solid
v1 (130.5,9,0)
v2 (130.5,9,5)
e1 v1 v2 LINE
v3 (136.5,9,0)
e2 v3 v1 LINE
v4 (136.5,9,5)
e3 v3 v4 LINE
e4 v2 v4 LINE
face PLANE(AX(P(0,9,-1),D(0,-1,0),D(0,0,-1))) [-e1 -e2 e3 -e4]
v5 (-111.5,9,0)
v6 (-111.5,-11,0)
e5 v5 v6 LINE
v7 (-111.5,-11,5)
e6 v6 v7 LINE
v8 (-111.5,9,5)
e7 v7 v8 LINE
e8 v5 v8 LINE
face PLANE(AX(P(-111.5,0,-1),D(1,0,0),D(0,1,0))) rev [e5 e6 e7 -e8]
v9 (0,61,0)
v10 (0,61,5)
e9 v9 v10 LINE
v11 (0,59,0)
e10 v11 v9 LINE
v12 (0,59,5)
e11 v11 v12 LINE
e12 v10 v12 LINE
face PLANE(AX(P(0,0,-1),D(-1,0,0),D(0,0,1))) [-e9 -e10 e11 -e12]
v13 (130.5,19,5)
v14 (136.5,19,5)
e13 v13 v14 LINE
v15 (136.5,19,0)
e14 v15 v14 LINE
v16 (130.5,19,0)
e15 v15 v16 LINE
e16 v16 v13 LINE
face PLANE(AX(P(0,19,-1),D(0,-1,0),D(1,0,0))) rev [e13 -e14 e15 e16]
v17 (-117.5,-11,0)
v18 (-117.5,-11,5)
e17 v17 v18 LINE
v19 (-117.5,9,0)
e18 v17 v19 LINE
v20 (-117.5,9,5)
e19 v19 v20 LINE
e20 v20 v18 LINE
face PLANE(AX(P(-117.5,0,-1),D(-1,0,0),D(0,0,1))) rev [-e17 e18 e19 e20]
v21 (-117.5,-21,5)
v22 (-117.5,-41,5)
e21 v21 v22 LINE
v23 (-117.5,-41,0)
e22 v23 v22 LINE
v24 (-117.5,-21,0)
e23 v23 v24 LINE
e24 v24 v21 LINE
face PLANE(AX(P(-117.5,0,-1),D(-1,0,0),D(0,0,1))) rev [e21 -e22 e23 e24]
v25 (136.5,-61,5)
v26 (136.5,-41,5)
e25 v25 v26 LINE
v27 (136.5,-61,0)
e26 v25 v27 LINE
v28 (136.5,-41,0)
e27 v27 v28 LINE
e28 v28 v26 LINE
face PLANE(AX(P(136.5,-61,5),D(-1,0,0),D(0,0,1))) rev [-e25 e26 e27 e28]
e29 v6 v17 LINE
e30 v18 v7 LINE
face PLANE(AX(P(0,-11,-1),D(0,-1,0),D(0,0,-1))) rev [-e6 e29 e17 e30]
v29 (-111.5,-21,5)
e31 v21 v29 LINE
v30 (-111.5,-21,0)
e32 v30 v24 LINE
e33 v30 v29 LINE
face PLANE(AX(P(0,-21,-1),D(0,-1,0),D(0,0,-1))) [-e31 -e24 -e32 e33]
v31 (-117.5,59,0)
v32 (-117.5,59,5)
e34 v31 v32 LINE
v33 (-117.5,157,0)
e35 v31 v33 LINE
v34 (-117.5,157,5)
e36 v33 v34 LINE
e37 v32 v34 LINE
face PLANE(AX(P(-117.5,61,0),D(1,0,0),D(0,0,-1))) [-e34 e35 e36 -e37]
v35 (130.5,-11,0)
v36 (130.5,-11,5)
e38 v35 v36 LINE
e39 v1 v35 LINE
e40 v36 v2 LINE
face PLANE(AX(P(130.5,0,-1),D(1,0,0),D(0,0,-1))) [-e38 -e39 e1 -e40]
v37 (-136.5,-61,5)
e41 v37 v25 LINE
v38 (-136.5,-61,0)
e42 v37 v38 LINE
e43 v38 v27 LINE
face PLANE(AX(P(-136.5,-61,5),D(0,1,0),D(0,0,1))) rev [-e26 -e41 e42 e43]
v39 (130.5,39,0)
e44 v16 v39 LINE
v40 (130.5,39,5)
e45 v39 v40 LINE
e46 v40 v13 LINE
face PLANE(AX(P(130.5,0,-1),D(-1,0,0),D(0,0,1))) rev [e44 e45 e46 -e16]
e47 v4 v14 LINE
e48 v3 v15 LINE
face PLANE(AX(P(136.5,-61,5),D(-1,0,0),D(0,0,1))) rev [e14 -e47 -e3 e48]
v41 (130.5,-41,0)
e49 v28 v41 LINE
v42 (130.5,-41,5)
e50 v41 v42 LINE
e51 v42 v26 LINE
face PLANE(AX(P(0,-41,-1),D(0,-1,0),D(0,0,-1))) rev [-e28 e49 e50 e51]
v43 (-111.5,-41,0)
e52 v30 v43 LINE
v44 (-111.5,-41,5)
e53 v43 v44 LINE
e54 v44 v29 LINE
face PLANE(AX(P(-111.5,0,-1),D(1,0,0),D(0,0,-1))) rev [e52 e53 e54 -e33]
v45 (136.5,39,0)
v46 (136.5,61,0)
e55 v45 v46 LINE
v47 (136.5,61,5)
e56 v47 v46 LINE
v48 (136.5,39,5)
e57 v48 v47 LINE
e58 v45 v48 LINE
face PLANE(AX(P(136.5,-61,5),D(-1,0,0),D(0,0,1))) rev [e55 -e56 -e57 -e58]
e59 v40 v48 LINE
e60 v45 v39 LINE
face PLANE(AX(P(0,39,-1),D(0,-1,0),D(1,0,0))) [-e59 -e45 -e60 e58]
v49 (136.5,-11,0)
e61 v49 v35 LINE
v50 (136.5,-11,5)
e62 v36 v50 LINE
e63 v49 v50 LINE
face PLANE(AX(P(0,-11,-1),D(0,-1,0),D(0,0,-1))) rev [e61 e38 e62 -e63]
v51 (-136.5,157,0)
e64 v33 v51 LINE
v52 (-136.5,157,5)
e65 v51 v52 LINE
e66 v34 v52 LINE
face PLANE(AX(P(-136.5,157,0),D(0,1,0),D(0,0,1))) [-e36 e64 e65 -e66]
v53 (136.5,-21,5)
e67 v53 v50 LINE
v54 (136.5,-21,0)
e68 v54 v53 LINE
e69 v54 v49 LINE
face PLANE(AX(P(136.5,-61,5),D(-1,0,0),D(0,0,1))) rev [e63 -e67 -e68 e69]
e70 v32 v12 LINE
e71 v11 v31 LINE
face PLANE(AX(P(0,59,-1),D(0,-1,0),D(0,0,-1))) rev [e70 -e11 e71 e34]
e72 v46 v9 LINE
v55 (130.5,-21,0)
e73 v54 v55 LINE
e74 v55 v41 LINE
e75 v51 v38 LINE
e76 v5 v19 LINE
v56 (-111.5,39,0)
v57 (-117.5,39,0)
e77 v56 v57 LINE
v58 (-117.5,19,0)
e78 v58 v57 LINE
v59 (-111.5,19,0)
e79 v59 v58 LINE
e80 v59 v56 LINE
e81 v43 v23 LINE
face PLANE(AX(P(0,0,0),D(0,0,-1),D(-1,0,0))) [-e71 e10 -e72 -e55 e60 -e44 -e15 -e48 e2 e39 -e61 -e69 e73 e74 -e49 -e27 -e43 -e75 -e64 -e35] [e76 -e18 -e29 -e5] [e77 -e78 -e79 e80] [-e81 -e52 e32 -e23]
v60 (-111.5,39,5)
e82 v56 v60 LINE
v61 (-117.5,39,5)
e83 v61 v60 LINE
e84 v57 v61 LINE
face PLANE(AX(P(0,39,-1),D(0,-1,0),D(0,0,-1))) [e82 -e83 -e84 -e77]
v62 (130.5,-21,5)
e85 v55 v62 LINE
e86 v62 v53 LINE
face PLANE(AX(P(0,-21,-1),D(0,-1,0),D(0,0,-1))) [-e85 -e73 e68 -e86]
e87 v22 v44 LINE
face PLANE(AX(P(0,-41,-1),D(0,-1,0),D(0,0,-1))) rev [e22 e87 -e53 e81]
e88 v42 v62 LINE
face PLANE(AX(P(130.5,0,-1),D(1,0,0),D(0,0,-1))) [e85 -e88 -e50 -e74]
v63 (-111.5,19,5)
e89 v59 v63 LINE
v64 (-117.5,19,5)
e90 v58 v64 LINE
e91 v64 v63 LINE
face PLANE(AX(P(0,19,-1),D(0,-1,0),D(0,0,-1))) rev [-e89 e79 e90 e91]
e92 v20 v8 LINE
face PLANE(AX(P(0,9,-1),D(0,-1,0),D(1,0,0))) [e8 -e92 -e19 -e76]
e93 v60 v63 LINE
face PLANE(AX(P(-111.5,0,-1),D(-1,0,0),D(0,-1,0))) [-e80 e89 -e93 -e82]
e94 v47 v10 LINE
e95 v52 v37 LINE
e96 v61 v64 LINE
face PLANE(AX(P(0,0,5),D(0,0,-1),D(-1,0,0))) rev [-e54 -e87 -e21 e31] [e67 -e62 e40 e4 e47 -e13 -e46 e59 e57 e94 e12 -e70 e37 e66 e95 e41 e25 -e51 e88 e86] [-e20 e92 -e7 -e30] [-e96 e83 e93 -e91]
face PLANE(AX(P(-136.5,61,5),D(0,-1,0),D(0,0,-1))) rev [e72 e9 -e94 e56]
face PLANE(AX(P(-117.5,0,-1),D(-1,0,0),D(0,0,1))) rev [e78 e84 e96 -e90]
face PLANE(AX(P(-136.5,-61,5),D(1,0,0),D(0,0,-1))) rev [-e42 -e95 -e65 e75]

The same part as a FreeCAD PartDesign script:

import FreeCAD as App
import Part
import Sketcher

V = App.Vector
Q = App.Units.Quantity


def add_polygon(sketch, points):
    """Adds a closed chain of lines whose ends are joined by coincident constraints."""
    first, n = sketch.GeometryCount, len(points)
    for a, b in zip(points, points[1:] + points[:1]):
        sketch.addGeometry(Part.LineSegment(App.Vector(*a, 0), App.Vector(*b, 0)), False)
    for i in range(n):
        sketch.addConstraint(Sketcher.Constraint("Coincident", first + i, 2, first + (i + 1) % n, 1))

doc = App.newDocument("Part")
body = doc.addObject("PartDesign::Body", "Body")

# Sketch on XY plane
sketch1 = body.newObject("Sketcher::SketchObject", "Sketch")
sketch1.AttachmentSupport = (doc.getObject("XY_Plane"), [""])
sketch1.MapMode = "FlatFace"
add_polygon(sketch1, [(-136, 61), (-136, -61), (136, -61), (136, 61)])  # lines 0-3
sketch1.addConstraint([
    Sketcher.Constraint("Vertical", 0),
    Sketcher.Constraint("Horizontal", 1),
    Sketcher.Constraint("Vertical", 2),
    Sketcher.Constraint("Horizontal", 3),
    Sketcher.Constraint("Symmetric", 0, 2, 2, 2, -1, 1),
    Sketcher.Constraint("DistanceX", 1, 1, 1, 2, Q("273 mm")),
    Sketcher.Constraint("DistanceY", 0, 2, 0, 1, Q("122 mm")),
])
pad1 = body.newObject("PartDesign::Pad", "Pad")
pad1.Profile = sketch1
pad1.Length = 5

# Sketch on XY plane
sketch2 = body.newObject("Sketcher::SketchObject", "Sketch001")
sketch2.AttachmentSupport = (doc.getObject("XY_Plane"), [""])
sketch2.MapMode = "FlatFace"
sketch2.AttachmentOffset = App.Placement(V(0, 0, 5), App.Rotation())
add_polygon(sketch2, [(-136, 157), (-136, 61), (-118, 61), (-118, 157)])  # lines 0-3
sketch2.addConstraint([
    Sketcher.Constraint("Vertical", 0),
    Sketcher.Constraint("Horizontal", 1),
    Sketcher.Constraint("Vertical", 2),
    Sketcher.Constraint("Horizontal", 3),
    Sketcher.Constraint("DistanceX", 1, 1, 1, 2, Q("19 mm")),
    Sketcher.Constraint("DistanceY", 0, 2, 0, 1, Q("96 mm")),
    Sketcher.Constraint("DistanceY", -1, 1, 0, 2, Q("61 mm")),
    Sketcher.Constraint("DistanceX", 0, 2, -1, 1, Q("136.5 mm")),
])
pad2 = body.newObject("PartDesign::Pad", "Pad001")
pad2.Profile = sketch2
pad2.Length = 5
pad2.Reversed = True

# Sketch on XY plane
sketch3 = body.newObject("Sketcher::SketchObject", "Sketch002")
sketch3.AttachmentSupport = (doc.getObject("XY_Plane"), [""])
sketch3.MapMode = "FlatFace"
sketch3.AttachmentOffset = App.Placement(V(0, 0, 5), App.Rotation())
add_polygon(sketch3, [(-118, 39), (-118, 19), (-112, 19), (-112, 39)])  # lines 0-3
add_polygon(sketch3, [(-118, 9), (-118, -11), (-112, -11), (-112, 9)])  # lines 4-7
add_polygon(sketch3, [(-118, -21), (-118, -41), (-112, -41), (-112, -21)])  # lines 8-11
add_polygon(sketch3, [(130, 39), (130, 19), (136, 19), (136, 39)])  # lines 12-15
add_polygon(sketch3, [(130, 9), (130, -11), (136, -11), (136, 9)])  # lines 16-19
add_polygon(sketch3, [(130, -21), (130, -41), (136, -41), (136, -21)])  # lines 20-23
sketch3.addConstraint([
    Sketcher.Constraint("Vertical", 0),
    Sketcher.Constraint("Horizontal", 1),
    Sketcher.Constraint("Vertical", 2),
    Sketcher.Constraint("Horizontal", 3),
    Sketcher.Constraint("Vertical", 4),
    Sketcher.Constraint("Horizontal", 5),
    Sketcher.Constraint("Vertical", 6),
    Sketcher.Constraint("Horizontal", 7),
    Sketcher.Constraint("Vertical", 8),
    Sketcher.Constraint("Horizontal", 9),
    Sketcher.Constraint("Vertical", 10),
    Sketcher.Constraint("Horizontal", 11),
    Sketcher.Constraint("Vertical", 12),
    Sketcher.Constraint("Horizontal", 13),
    Sketcher.Constraint("Vertical", 14),
    Sketcher.Constraint("Horizontal", 15),
    Sketcher.Constraint("Vertical", 16),
    Sketcher.Constraint("Horizontal", 17),
    Sketcher.Constraint("Vertical", 18),
    Sketcher.Constraint("Horizontal", 19),
    Sketcher.Constraint("Vertical", 20),
    Sketcher.Constraint("Horizontal", 21),
    Sketcher.Constraint("Vertical", 22),
    Sketcher.Constraint("Horizontal", 23),
    Sketcher.Constraint("Horizontal", 1, 2, 12, 2),
    Sketcher.Constraint("Horizontal", 3, 2, 14, 2),
    Sketcher.Constraint("Horizontal", 5, 2, 16, 2),
    Sketcher.Constraint("Horizontal", 7, 2, 18, 2),
    Sketcher.Constraint("Horizontal", 9, 2, 20, 2),
    Sketcher.Constraint("Horizontal", 11, 2, 22, 2),
    Sketcher.Constraint("Vertical", 3, 2, 4, 2),
    Sketcher.Constraint("Vertical", 2, 2, 5, 2),
    Sketcher.Constraint("Vertical", 7, 2, 8, 2),
    Sketcher.Constraint("Vertical", 6, 2, 9, 2),
    Sketcher.Constraint("Vertical", 15, 2, 16, 2),
    Sketcher.Constraint("Vertical", 14, 2, 17, 2),
    Sketcher.Constraint("Vertical", 19, 2, 20, 2),
    Sketcher.Constraint("Vertical", 18, 2, 21, 2),
    Sketcher.Constraint("Equal", 11, 13),
    Sketcher.Constraint("Equal", 2, 4),
    Sketcher.Constraint("Equal", 6, 8),
    Sketcher.Constraint("DistanceX", 1, 1, 1, 2, Q("6 mm")),
    Sketcher.Constraint("DistanceY", 0, 2, 0, 1, Q("20 mm")),
    Sketcher.Constraint("DistanceY", -1, 1, 0, 2, Q("19 mm")),
    Sketcher.Constraint("DistanceY", 4, 2, -1, 1, Q("11 mm")),
    Sketcher.Constraint("DistanceY", 8, 2, -1, 1, Q("41 mm")),
    Sketcher.Constraint("DistanceX", 1, 2, 12, 2, Q("242 mm")),
    Sketcher.Constraint("DistanceX", 0, 2, -1, 1, Q("117.5 mm")),
])
pocket1 = body.newObject("PartDesign::Pocket", "Pocket")
pocket1.Profile = sketch3
pocket1.Length = 6

# Sketch on XY plane
sketch4 = body.newObject("Sketcher::SketchObject", "Sketch003")
sketch4.AttachmentSupport = (doc.getObject("XY_Plane"), [""])
sketch4.MapMode = "FlatFace"
sketch4.AttachmentOffset = App.Placement(V(0, 0, 5), App.Rotation())
add_polygon(sketch4, [(-117.5, 61), (-117.5, 59), (0, 59), (0, 61)])  # lines 0-3
sketch4.addConstraint([
    Sketcher.Constraint("Vertical", 0),
    Sketcher.Constraint("Horizontal", 1),
    Sketcher.Constraint("Vertical", 2),
    Sketcher.Constraint("Horizontal", 3),
    Sketcher.Constraint("PointOnObject", 1, 2, -2),
    Sketcher.Constraint("DistanceY", 0, 2, 0, 1, Q("2 mm")),
    Sketcher.Constraint("DistanceX", 1, 1, 1, 2, Q("117.5 mm")),
    Sketcher.Constraint("DistanceY", -1, 1, 0, 2, Q("59 mm")),
])
pocket2 = body.newObject("PartDesign::Pocket", "Pocket001")
pocket2.Profile = sketch4
pocket2.Length = 6

doc.recompute()
